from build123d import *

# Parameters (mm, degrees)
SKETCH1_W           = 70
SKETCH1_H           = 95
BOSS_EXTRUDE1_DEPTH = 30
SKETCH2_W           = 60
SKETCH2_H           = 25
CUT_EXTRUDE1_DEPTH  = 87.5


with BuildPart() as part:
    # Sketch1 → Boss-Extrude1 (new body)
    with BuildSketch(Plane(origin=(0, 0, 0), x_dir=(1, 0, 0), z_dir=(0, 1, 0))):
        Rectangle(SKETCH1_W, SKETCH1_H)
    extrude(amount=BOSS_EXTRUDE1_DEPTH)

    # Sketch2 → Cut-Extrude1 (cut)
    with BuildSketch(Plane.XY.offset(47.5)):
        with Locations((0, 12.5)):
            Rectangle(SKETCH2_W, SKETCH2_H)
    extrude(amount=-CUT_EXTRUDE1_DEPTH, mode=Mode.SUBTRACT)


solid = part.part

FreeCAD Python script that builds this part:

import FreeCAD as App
import Part
import Sketcher

doc = App.newDocument("Part")
body = doc.addObject("PartDesign::Body", "Body")

sketch1 = body.newObject("Sketcher::SketchObject", "Sketch")
sketch1.AttachmentSupport = (doc.getObject("XZ_Plane"), [""])
sketch1.MapMode = "FlatFace"
sketch1.addGeometry([
    Part.LineSegment(App.Vector(-35, -48, 0), App.Vector(-35, 48, 0)),
    Part.LineSegment(App.Vector(-35, 48, 0), App.Vector(35, 48, 0)),
    Part.LineSegment(App.Vector(35, 48, 0), App.Vector(35, -48, 0)),
    Part.LineSegment(App.Vector(35, -48, 0), App.Vector(-35, -48, 0)),
], False)
sketch1.addConstraint([
    Sketcher.Constraint("Coincident", 0, 2, 1, 1),
    Sketcher.Constraint("Coincident", 1, 2, 2, 1),
    Sketcher.Constraint("Coincident", 2, 2, 3, 1),
    Sketcher.Constraint("Coincident", 3, 2, 0, 1),
    Sketcher.Constraint("Vertical", 0),
    Sketcher.Constraint("Horizontal", 1),
    Sketcher.Constraint("Vertical", 2),
    Sketcher.Constraint("Horizontal", 3),
    Sketcher.Constraint("Symmetric", 0, 2, 2, 2, -1, 1),
    Sketcher.Constraint("DistanceX", 1, 1, 1, 2, 70.0),
    Sketcher.Constraint("DistanceY", 0, 1, 0, 2, 95.0),
])
pad1 = body.newObject("PartDesign::Pad", "Pad")
pad1.Profile = sketch1
pad1.Length = 30
pad1.Reversed = True

sketch2 = body.newObject("Sketcher::SketchObject", "Sketch001")
sketch2.AttachmentSupport = (doc.getObject("XY_Plane"), [""])
sketch2.MapMode = "FlatFace"
sketch2.AttachmentOffset = App.Placement(App.Vector(0, 0, 47.5), App.Rotation())
sketch2.addGeometry([
    Part.LineSegment(App.Vector(-30, 25, 0), App.Vector(-30, 0, 0)),
    Part.LineSegment(App.Vector(-30, 0, 0), App.Vector(30, 0, 0)),
    Part.LineSegment(App.Vector(30, 0, 0), App.Vector(30, 25, 0)),
    Part.LineSegment(App.Vector(30, 25, 0), App.Vector(-30, 25, 0)),
], False)
sketch2.addConstraint([
    Sketcher.Constraint("Coincident", 0, 2, 1, 1),
    Sketcher.Constraint("Coincident", 1, 2, 2, 1),
    Sketcher.Constraint("Coincident", 2, 2, 3, 1),
    Sketcher.Constraint("Coincident", 3, 2, 0, 1),
    Sketcher.Constraint("Vertical", 0),
    Sketcher.Constraint("Horizontal", 1),
    Sketcher.Constraint("Vertical", 2),
    Sketcher.Constraint("Horizontal", 3),
    Sketcher.Constraint("Symmetric", 0, 2, 1, 2, -1, 1),
    Sketcher.Constraint("DistanceX", 1, 1, 1, 2, 60.0),
    Sketcher.Constraint("DistanceY", 0, 2, 0, 1, 25.0),
])
pocket1 = body.newObject("PartDesign::Pocket", "Pocket")
pocket1.Profile = sketch2
pocket1.Length = 87.5

doc.recompute()
